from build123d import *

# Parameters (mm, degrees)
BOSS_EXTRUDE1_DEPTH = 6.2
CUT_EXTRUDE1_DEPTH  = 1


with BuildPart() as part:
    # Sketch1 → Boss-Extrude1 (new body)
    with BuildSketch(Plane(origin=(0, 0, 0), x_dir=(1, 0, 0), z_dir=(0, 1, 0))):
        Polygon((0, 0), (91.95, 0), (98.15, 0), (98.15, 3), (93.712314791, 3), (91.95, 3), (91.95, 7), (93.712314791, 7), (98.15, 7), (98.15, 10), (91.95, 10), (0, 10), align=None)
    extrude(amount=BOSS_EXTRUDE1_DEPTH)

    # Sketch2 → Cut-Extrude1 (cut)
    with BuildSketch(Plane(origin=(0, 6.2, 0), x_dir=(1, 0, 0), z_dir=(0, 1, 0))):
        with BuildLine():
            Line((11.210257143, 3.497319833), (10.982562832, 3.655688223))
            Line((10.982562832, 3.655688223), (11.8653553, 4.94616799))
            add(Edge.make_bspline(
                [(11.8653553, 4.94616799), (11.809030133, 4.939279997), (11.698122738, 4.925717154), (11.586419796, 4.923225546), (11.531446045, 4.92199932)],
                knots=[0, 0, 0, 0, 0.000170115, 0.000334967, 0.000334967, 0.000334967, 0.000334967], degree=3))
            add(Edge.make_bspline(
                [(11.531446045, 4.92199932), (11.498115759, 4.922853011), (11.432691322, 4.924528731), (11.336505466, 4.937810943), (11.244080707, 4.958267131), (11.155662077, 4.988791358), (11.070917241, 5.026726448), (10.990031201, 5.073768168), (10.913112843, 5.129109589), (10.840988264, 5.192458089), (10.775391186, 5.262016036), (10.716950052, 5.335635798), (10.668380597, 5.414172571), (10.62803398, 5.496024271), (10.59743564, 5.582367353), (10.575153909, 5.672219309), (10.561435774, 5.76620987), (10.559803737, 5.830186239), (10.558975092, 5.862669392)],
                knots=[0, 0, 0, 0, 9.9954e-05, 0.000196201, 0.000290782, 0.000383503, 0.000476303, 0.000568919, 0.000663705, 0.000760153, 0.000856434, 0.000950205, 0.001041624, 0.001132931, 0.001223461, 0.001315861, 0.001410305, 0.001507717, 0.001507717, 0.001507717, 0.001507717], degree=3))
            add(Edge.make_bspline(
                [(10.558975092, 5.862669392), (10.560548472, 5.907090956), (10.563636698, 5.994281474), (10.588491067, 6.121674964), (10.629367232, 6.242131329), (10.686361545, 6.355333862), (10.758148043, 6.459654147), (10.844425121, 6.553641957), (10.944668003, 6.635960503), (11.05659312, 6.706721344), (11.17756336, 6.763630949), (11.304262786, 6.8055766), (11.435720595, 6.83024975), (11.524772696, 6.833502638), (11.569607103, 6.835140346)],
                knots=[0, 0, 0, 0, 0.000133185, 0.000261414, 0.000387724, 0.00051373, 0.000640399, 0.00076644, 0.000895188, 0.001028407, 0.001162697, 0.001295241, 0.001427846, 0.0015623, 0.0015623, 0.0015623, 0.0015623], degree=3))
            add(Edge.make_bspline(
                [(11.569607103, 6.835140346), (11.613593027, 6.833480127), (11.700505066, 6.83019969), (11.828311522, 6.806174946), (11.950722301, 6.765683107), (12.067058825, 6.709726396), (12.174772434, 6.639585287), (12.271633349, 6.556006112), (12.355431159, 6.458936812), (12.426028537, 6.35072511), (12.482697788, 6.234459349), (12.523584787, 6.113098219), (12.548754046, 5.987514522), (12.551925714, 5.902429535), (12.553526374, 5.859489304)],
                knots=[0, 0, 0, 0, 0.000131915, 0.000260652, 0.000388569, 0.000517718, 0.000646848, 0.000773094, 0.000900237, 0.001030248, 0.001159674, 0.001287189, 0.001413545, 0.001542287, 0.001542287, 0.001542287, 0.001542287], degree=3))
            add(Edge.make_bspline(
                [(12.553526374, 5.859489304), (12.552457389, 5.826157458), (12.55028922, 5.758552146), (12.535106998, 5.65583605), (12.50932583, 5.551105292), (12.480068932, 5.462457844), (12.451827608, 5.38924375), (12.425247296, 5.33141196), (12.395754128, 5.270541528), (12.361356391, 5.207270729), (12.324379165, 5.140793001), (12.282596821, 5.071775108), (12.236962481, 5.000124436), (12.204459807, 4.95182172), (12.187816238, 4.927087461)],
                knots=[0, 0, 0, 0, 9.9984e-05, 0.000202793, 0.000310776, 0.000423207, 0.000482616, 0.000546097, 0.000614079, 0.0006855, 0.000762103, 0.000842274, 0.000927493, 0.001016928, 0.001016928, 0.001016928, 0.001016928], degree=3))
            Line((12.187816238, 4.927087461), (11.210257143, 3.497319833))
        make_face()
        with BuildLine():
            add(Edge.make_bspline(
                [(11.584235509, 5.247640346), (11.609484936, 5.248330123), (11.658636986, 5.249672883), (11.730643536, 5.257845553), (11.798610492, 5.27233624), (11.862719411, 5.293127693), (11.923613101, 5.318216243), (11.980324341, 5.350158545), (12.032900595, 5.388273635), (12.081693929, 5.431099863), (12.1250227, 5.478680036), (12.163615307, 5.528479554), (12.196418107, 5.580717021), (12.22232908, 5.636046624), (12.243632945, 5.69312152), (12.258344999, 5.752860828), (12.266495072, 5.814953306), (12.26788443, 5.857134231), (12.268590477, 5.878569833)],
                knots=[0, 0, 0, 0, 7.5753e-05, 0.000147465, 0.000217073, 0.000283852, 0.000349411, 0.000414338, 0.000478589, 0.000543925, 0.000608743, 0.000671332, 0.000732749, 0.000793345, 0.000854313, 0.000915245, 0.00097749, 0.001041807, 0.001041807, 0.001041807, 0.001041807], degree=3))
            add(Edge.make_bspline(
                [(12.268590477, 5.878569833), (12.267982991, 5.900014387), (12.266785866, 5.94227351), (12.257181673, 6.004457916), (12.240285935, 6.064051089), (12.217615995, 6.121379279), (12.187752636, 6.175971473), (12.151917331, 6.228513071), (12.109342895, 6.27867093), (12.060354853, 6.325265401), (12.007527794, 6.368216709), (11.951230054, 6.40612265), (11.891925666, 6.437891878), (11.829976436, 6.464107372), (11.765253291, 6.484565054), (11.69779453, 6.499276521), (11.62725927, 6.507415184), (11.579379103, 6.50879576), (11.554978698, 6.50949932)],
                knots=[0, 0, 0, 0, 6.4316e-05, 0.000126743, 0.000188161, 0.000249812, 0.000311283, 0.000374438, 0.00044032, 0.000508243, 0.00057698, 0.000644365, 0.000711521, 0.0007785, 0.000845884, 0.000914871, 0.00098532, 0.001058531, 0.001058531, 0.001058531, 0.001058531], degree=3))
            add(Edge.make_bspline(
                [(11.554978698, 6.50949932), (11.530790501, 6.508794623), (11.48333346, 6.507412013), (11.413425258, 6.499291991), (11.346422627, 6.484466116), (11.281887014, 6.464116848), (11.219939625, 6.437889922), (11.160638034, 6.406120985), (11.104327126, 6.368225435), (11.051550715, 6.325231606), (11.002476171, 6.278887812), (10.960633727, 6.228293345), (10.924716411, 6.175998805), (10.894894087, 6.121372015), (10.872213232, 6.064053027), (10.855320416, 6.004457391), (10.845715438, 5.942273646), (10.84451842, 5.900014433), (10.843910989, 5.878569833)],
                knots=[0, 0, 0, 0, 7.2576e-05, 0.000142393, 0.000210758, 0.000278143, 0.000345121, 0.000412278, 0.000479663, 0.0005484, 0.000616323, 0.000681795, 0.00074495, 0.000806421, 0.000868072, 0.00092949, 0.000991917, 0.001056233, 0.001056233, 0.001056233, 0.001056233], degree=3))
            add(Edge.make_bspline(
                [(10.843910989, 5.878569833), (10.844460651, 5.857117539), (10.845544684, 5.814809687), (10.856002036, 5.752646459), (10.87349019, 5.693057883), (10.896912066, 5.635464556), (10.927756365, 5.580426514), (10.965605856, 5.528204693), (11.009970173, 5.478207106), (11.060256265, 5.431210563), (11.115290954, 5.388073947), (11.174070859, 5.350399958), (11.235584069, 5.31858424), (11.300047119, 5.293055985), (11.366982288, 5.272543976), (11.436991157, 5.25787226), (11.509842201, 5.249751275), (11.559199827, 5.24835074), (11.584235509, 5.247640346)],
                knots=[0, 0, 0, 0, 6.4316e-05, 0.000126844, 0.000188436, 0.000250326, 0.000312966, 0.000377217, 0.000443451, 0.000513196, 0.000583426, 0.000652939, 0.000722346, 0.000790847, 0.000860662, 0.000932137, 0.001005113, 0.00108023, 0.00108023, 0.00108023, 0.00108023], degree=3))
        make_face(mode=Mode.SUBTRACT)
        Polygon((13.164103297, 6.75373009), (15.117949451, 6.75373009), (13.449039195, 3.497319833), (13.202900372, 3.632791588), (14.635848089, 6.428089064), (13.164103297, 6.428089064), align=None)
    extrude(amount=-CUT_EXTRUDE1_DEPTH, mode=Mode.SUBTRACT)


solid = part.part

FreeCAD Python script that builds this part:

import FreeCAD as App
import Part
import Sketcher
from FreeCAD import Vector


def add_polygon(sketch, points):
    """Adds a closed chain of lines whose ends are joined by coincident constraints."""
    first, n = sketch.GeometryCount, len(points)
    for a, b in zip(points, points[1:] + points[:1]):
        sketch.addGeometry(Part.LineSegment(App.Vector(*a, 0), App.Vector(*b, 0)), False)
    for i in range(n):
        sketch.addConstraint(Sketcher.Constraint("Coincident", first + i, 2, first + (i + 1) % n, 1))

doc = App.newDocument("Part")
body = doc.addObject("PartDesign::Body", "Body")

# Sketch on XZ plane
sketch1 = doc.addObject("Sketcher::SketchObject", "Sketch")
body.addObject(sketch1)
sketch1.AttachmentSupport = (doc.XZ_Plane, [""])
sketch1.MapMode = "FlatFace"
add_polygon(sketch1, [(0, 0), (98.2, 0), (98.2, -3), (92, -3), (92, -7), (98.2, -7), (98.2, -10), (0, -10)])  # lines 0-7
sketch1.addConstraint([
    Sketcher.Constraint("Horizontal", 0),
    Sketcher.Constraint("Vertical", 1),
    Sketcher.Constraint("Horizontal", 2),
    Sketcher.Constraint("Vertical", 3),
    Sketcher.Constraint("Horizontal", 4),
    Sketcher.Constraint("Vertical", 5),
    Sketcher.Constraint("Horizontal", 6),
    Sketcher.Constraint("Vertical", 7),
    Sketcher.Constraint("Coincident", 7, 2, -1, 1),
    Sketcher.Constraint("Vertical", 1, 2, 4, 2),
    Sketcher.Constraint("Equal", 1, 5),
    Sketcher.Constraint("DistanceY", 1, 2, 1, 1, 3.0),
    Sketcher.Constraint("DistanceY", 3, 2, 3, 1, 4.0),
    Sketcher.Constraint("DistanceX", 2, 2, 2, 1, 6.2),
    Sketcher.Constraint("DistanceX", 0, 1, 0, 2, 98.15),
])
pad1 = doc.addObject("PartDesign::Pad", "Pad")
body.addObject(pad1)
pad1.Profile = sketch1
pad1.Length = 6.2
pad1.Reversed = True

# Sketch on XZ plane
sketch2 = doc.addObject("Sketcher::SketchObject", "Sketch001")
body.addObject(sketch2)
sketch2.AttachmentSupport = (doc.XZ_Plane, [""])
sketch2.MapMode = "FlatFace"
sketch2.AttachmentOffset = App.Placement(Vector(0, 0, -6.2), App.Rotation())
sketch2.addGeometry(Part.LineSegment(Vector(10.982563, -3.655688, 0), Vector(11.210257, -3.49732, 0)), False)  # 0
sketch2.addGeometry(Part.LineSegment(Vector(11.210257, -3.49732, 0), Vector(12.187816, -4.927087, 0)), False)  # 1
sketch2.addGeometry(Part.BSplineCurve([Vector(12.553526, -5.859489, 0), Vector(12.552457, -5.826157, 0), Vector(12.550289, -5.758552, 0), Vector(12.535107, -5.655836, 0), Vector(12.509326, -5.551105, 0), Vector(12.480069, -5.462458, 0), Vector(12.451828, -5.389244, 0), Vector(12.425247, -5.331412, 0), Vector(12.395754, -5.270542, 0), Vector(12.361356, -5.207271, 0), Vector(12.324379, -5.140793, 0), Vector(12.282597, -5.071775, 0), Vector(12.236962, -5.000124, 0), Vector(12.20446, -4.951822, 0), Vector(12.187816, -4.927087, 0)], [4, 1, 1, 1, 1, 1, 1, 1, 1, 1, 1, 1, 4], [0, 0.000099984, 0.000202793, 0.000310776, 0.000423207, 0.000482616, 0.000546097, 0.000614079, 0.0006855, 0.000762103, 0.000842274, 0.000927493, 0.001016928], False, 3, [1, 1, 1, 1, 1, 1, 1, 1, 1, 1, 1, 1, 1, 1, 1], False), False)  # 2
sketch2.addGeometry(Part.BSplineCurve([Vector(11.569607, -6.83514, 0), Vector(11.613593, -6.83348, 0), Vector(11.700505, -6.8302, 0), Vector(11.828312, -6.806175, 0), Vector(11.950722, -6.765683, 0), Vector(12.067059, -6.709726, 0), Vector(12.174772, -6.639585, 0), Vector(12.271633, -6.556006, 0), Vector(12.355431, -6.458937, 0), Vector(12.426029, -6.350725, 0), Vector(12.482698, -6.234459, 0), Vector(12.523585, -6.113098, 0), Vector(12.548754, -5.987515, 0), Vector(12.551926, -5.90243, 0), Vector(12.553526, -5.859489, 0)], [4, 1, 1, 1, 1, 1, 1, 1, 1, 1, 1, 1, 4], [0, 0.000131915, 0.000260652, 0.000388569, 0.000517718, 0.000646848, 0.000773094, 0.000900237, 0.001030248, 0.001159674, 0.001287189, 0.001413545, 0.001542287], False, 3, [1, 1, 1, 1, 1, 1, 1, 1, 1, 1, 1, 1, 1, 1, 1], False), False)  # 3
sketch2.addGeometry(Part.BSplineCurve([Vector(10.558975, -5.862669, 0), Vector(10.560548, -5.907091, 0), Vector(10.563637, -5.994281, 0), Vector(10.588491, -6.121675, 0), Vector(10.629367, -6.242131, 0), Vector(10.686362, -6.355334, 0), Vector(10.758148, -6.459654, 0), Vector(10.844425, -6.553642, 0), Vector(10.944668, -6.635961, 0), Vector(11.056593, -6.706721, 0), Vector(11.177563, -6.763631, 0), Vector(11.304263, -6.805577, 0), Vector(11.435721, -6.83025, 0), Vector(11.524773, -6.833503, 0), Vector(11.569607, -6.83514, 0)], [4, 1, 1, 1, 1, 1, 1, 1, 1, 1, 1, 1, 4], [0, 0.000133185, 0.000261414, 0.000387724, 0.00051373, 0.000640399, 0.00076644, 0.000895188, 0.001028407, 0.001162697, 0.001295241, 0.001427846, 0.0015623], False, 3, [1, 1, 1, 1, 1, 1, 1, 1, 1, 1, 1, 1, 1, 1, 1], False), False)  # 4
sketch2.addGeometry(Part.BSplineCurve([Vector(11.531446, -4.921999, 0), Vector(11.498116, -4.922853, 0), Vector(11.432691, -4.924529, 0), Vector(11.336505, -4.937811, 0), Vector(11.244081, -4.958267, 0), Vector(11.155662, -4.988791, 0), Vector(11.070917, -5.026726, 0), Vector(10.990031, -5.073768, 0), Vector(10.913113, -5.12911, 0), Vector(10.840988, -5.192458, 0), Vector(10.775391, -5.262016, 0), Vector(10.71695, -5.335636, 0), Vector(10.668381, -5.414173, 0), Vector(10.628034, -5.496024, 0), Vector(10.597436, -5.582367, 0), Vector(10.575154, -5.672219, 0), Vector(10.561436, -5.76621, 0), Vector(10.559804, -5.830186, 0), Vector(10.558975, -5.862669, 0)], [4, 1, 1, 1, 1, 1, 1, 1, 1, 1, 1, 1, 1, 1, 1, 1, 4], [0, 0.000099954, 0.000196201, 0.000290782, 0.000383503, 0.000476303, 0.000568919, 0.000663705, 0.000760153, 0.000856434, 0.000950205, 0.001041624, 0.001132931, 0.001223461, 0.001315861, 0.001410305, 0.001507717], False, 3, [1, 1, 1, 1, 1, 1, 1, 1, 1, 1, 1, 1, 1, 1, 1, 1, 1, 1, 1], False), False)  # 5
sketch2.addGeometry(Part.BSplineCurve([Vector(11.865355, -4.946168, 0), Vector(11.80903, -4.93928, 0), Vector(11.698123, -4.925717, 0), Vector(11.58642, -4.923226, 0), Vector(11.531446, -4.921999, 0)], [4, 1, 4], [0, 0.000170115, 0.000334967], False, 3, [1, 1, 1, 1, 1], False), False)  # 6
sketch2.addGeometry(Part.LineSegment(Vector(11.865355, -4.946168, 0), Vector(10.982563, -3.655688, 0)), False)  # 7
sketch2.addGeometry(Part.BSplineCurve([Vector(10.843911, -5.87857, 0), Vector(10.844461, -5.857118, 0), Vector(10.845545, -5.81481, 0), Vector(10.856002, -5.752646, 0), Vector(10.87349, -5.693058, 0), Vector(10.896912, -5.635465, 0), Vector(10.927756, -5.580427, 0), Vector(10.965606, -5.528205, 0), Vector(11.00997, -5.478207, 0), Vector(11.060256, -5.431211, 0), Vector(11.115291, -5.388074, 0), Vector(11.174071, -5.3504, 0), Vector(11.235584, -5.318584, 0), Vector(11.300047, -5.293056, 0), Vector(11.366982, -5.272544, 0), Vector(11.436991, -5.257872, 0), Vector(11.509842, -5.249751, 0), Vector(11.5592, -5.248351, 0), Vector(11.584236, -5.24764, 0)], [4, 1, 1, 1, 1, 1, 1, 1, 1, 1, 1, 1, 1, 1, 1, 1, 4], [0, 0.000064316, 0.000126844, 0.000188436, 0.000250326, 0.000312966, 0.000377217, 0.000443451, 0.000513196, 0.000583426, 0.000652939, 0.000722346, 0.000790847, 0.000860662, 0.000932137, 0.001005113, 0.00108023], False, 3, [1, 1, 1, 1, 1, 1, 1, 1, 1, 1, 1, 1, 1, 1, 1, 1, 1, 1, 1], False), False)  # 8
sketch2.addGeometry(Part.BSplineCurve([Vector(11.554979, -6.509499, 0), Vector(11.530791, -6.508795, 0), Vector(11.483333, -6.507412, 0), Vector(11.413425, -6.499292, 0), Vector(11.346423, -6.484466, 0), Vector(11.281887, -6.464117, 0), Vector(11.21994, -6.43789, 0), Vector(11.160638, -6.406121, 0), Vector(11.104327, -6.368225, 0), Vector(11.051551, -6.325232, 0), Vector(11.002476, -6.278888, 0), Vector(10.960634, -6.228293, 0), Vector(10.924716, -6.175999, 0), Vector(10.894894, -6.121372, 0), Vector(10.872213, -6.064053, 0), Vector(10.85532, -6.004457, 0), Vector(10.845715, -5.942274, 0), Vector(10.844518, -5.900014, 0), Vector(10.843911, -5.87857, 0)], [4, 1, 1, 1, 1, 1, 1, 1, 1, 1, 1, 1, 1, 1, 1, 1, 4], [0, 0.000072576, 0.000142393, 0.000210758, 0.000278143, 0.000345121, 0.000412278, 0.000479663, 0.0005484, 0.000616323, 0.000681795, 0.00074495, 0.000806421, 0.000868072, 0.00092949, 0.000991917, 0.001056233], False, 3, [1, 1, 1, 1, 1, 1, 1, 1, 1, 1, 1, 1, 1, 1, 1, 1, 1, 1, 1], False), False)  # 9
sketch2.addGeometry(Part.BSplineCurve([Vector(12.26859, -5.87857, 0), Vector(12.267983, -5.900014, 0), Vector(12.266786, -5.942274, 0), Vector(12.257182, -6.004458, 0), Vector(12.240286, -6.064051, 0), Vector(12.217616, -6.121379, 0), Vector(12.187753, -6.175971, 0), Vector(12.151917, -6.228513, 0), Vector(12.109343, -6.278671, 0), Vector(12.060355, -6.325265, 0), Vector(12.007528, -6.368217, 0), Vector(11.95123, -6.406123, 0), Vector(11.891926, -6.437892, 0), Vector(11.829976, -6.464107, 0), Vector(11.765253, -6.484565, 0), Vector(11.697795, -6.499277, 0), Vector(11.627259, -6.507415, 0), Vector(11.579379, -6.508796, 0), Vector(11.554979, -6.509499, 0)], [4, 1, 1, 1, 1, 1, 1, 1, 1, 1, 1, 1, 1, 1, 1, 1, 4], [0, 0.000064316, 0.000126743, 0.000188161, 0.000249812, 0.000311283, 0.000374438, 0.00044032, 0.000508243, 0.00057698, 0.000644365, 0.000711521, 0.0007785, 0.000845884, 0.000914871, 0.00098532, 0.001058531], False, 3, [1, 1, 1, 1, 1, 1, 1, 1, 1, 1, 1, 1, 1, 1, 1, 1, 1, 1, 1], False), False)  # 10
sketch2.addGeometry(Part.BSplineCurve([Vector(11.584236, -5.24764, 0), Vector(11.609485, -5.24833, 0), Vector(11.658637, -5.249673, 0), Vector(11.730644, -5.257846, 0), Vector(11.79861, -5.272336, 0), Vector(11.862719, -5.293128, 0), Vector(11.923613, -5.318216, 0), Vector(11.980324, -5.350159, 0), Vector(12.032901, -5.388274, 0), Vector(12.081694, -5.4311, 0), Vector(12.125023, -5.47868, 0), Vector(12.163615, -5.52848, 0), Vector(12.196418, -5.580717, 0), Vector(12.222329, -5.636047, 0), Vector(12.243633, -5.693122, 0), Vector(12.258345, -5.752861, 0), Vector(12.266495, -5.814953, 0), Vector(12.267884, -5.857134, 0), Vector(12.26859, -5.87857, 0)], [4, 1, 1, 1, 1, 1, 1, 1, 1, 1, 1, 1, 1, 1, 1, 1, 4], [0, 0.000075753, 0.000147465, 0.000217073, 0.000283852, 0.000349411, 0.000414338, 0.000478589, 0.000543925, 0.000608743, 0.000671332, 0.000732749, 0.000793345, 0.000854313, 0.000915245, 0.00097749, 0.001041807], False, 3, [1, 1, 1, 1, 1, 1, 1, 1, 1, 1, 1, 1, 1, 1, 1, 1, 1, 1, 1], False), False)  # 11
add_polygon(sketch2, [(15.117949, -6.75373), (13.164103, -6.75373), (13.164103, -6.428089), (14.635848, -6.428089), (13.2029, -3.632792), (13.449039, -3.49732)])  # lines 12-17
sketch2.addConstraint([
    Sketcher.Constraint("Block", 2),
    Sketcher.Constraint("Block", 3),
    Sketcher.Constraint("Block", 4),
    Sketcher.Constraint("Block", 5),
    Sketcher.Constraint("Block", 6),
    Sketcher.Constraint("Block", 8),
    Sketcher.Constraint("Block", 9),
    Sketcher.Constraint("Block", 10),
    Sketcher.Constraint("Block", 11),
    Sketcher.Constraint("Coincident", 0, 2, 1, 1),
    Sketcher.Constraint("Coincident", 1, 2, 2, 2),
    Sketcher.Constraint("Coincident", 6, 1, 7, 1),
    Sketcher.Constraint("Coincident", 7, 2, 0, 1),
    Sketcher.Constraint("Horizontal", 12),
    Sketcher.Constraint("Vertical", 13),
    Sketcher.Constraint("Horizontal", 14),
    Sketcher.Constraint("Horizontal", 0, 2, 16, 2),
    Sketcher.Constraint("DistanceY", 13, 2, 1, 2, 1.501002),
    Sketcher.Constraint("DistanceY", 13, 1, 13, 2, 0.325641),
    Sketcher.Constraint("DistanceX", -1, 1, 15, 2, 13.2029),
    Sketcher.Constraint("DistanceY", 1, 2, 7, 2, 1.271399),
    Sketcher.Constraint("DistanceX", 14, 2, 17, 2, 0.482101),
    Sketcher.Constraint("Distance", 1, 1.73201),
    Sketcher.Constraint("Distance", 7, 1.563541),
    Sketcher.Constraint("DistanceX", 12, 2, 12, 1, 1.953846),
    Sketcher.Constraint("DistanceY", 0, 2, -1, 1, 3.49732),
    Sketcher.Constraint("DistanceX", -1, 1, 14, 2, 14.635848),
    Sketcher.Constraint("DistanceY", 15, 2, -1, 1, 3.632792),
    Sketcher.Constraint("DistanceX", -1, 1, 16, 2, 13.449039),
])
pocket1 = doc.addObject("PartDesign::Pocket", "Pocket")
body.addObject(pocket1)
pocket1.Profile = sketch2
pocket1.Length = 1
pocket1.Reversed = True

doc.recompute()
